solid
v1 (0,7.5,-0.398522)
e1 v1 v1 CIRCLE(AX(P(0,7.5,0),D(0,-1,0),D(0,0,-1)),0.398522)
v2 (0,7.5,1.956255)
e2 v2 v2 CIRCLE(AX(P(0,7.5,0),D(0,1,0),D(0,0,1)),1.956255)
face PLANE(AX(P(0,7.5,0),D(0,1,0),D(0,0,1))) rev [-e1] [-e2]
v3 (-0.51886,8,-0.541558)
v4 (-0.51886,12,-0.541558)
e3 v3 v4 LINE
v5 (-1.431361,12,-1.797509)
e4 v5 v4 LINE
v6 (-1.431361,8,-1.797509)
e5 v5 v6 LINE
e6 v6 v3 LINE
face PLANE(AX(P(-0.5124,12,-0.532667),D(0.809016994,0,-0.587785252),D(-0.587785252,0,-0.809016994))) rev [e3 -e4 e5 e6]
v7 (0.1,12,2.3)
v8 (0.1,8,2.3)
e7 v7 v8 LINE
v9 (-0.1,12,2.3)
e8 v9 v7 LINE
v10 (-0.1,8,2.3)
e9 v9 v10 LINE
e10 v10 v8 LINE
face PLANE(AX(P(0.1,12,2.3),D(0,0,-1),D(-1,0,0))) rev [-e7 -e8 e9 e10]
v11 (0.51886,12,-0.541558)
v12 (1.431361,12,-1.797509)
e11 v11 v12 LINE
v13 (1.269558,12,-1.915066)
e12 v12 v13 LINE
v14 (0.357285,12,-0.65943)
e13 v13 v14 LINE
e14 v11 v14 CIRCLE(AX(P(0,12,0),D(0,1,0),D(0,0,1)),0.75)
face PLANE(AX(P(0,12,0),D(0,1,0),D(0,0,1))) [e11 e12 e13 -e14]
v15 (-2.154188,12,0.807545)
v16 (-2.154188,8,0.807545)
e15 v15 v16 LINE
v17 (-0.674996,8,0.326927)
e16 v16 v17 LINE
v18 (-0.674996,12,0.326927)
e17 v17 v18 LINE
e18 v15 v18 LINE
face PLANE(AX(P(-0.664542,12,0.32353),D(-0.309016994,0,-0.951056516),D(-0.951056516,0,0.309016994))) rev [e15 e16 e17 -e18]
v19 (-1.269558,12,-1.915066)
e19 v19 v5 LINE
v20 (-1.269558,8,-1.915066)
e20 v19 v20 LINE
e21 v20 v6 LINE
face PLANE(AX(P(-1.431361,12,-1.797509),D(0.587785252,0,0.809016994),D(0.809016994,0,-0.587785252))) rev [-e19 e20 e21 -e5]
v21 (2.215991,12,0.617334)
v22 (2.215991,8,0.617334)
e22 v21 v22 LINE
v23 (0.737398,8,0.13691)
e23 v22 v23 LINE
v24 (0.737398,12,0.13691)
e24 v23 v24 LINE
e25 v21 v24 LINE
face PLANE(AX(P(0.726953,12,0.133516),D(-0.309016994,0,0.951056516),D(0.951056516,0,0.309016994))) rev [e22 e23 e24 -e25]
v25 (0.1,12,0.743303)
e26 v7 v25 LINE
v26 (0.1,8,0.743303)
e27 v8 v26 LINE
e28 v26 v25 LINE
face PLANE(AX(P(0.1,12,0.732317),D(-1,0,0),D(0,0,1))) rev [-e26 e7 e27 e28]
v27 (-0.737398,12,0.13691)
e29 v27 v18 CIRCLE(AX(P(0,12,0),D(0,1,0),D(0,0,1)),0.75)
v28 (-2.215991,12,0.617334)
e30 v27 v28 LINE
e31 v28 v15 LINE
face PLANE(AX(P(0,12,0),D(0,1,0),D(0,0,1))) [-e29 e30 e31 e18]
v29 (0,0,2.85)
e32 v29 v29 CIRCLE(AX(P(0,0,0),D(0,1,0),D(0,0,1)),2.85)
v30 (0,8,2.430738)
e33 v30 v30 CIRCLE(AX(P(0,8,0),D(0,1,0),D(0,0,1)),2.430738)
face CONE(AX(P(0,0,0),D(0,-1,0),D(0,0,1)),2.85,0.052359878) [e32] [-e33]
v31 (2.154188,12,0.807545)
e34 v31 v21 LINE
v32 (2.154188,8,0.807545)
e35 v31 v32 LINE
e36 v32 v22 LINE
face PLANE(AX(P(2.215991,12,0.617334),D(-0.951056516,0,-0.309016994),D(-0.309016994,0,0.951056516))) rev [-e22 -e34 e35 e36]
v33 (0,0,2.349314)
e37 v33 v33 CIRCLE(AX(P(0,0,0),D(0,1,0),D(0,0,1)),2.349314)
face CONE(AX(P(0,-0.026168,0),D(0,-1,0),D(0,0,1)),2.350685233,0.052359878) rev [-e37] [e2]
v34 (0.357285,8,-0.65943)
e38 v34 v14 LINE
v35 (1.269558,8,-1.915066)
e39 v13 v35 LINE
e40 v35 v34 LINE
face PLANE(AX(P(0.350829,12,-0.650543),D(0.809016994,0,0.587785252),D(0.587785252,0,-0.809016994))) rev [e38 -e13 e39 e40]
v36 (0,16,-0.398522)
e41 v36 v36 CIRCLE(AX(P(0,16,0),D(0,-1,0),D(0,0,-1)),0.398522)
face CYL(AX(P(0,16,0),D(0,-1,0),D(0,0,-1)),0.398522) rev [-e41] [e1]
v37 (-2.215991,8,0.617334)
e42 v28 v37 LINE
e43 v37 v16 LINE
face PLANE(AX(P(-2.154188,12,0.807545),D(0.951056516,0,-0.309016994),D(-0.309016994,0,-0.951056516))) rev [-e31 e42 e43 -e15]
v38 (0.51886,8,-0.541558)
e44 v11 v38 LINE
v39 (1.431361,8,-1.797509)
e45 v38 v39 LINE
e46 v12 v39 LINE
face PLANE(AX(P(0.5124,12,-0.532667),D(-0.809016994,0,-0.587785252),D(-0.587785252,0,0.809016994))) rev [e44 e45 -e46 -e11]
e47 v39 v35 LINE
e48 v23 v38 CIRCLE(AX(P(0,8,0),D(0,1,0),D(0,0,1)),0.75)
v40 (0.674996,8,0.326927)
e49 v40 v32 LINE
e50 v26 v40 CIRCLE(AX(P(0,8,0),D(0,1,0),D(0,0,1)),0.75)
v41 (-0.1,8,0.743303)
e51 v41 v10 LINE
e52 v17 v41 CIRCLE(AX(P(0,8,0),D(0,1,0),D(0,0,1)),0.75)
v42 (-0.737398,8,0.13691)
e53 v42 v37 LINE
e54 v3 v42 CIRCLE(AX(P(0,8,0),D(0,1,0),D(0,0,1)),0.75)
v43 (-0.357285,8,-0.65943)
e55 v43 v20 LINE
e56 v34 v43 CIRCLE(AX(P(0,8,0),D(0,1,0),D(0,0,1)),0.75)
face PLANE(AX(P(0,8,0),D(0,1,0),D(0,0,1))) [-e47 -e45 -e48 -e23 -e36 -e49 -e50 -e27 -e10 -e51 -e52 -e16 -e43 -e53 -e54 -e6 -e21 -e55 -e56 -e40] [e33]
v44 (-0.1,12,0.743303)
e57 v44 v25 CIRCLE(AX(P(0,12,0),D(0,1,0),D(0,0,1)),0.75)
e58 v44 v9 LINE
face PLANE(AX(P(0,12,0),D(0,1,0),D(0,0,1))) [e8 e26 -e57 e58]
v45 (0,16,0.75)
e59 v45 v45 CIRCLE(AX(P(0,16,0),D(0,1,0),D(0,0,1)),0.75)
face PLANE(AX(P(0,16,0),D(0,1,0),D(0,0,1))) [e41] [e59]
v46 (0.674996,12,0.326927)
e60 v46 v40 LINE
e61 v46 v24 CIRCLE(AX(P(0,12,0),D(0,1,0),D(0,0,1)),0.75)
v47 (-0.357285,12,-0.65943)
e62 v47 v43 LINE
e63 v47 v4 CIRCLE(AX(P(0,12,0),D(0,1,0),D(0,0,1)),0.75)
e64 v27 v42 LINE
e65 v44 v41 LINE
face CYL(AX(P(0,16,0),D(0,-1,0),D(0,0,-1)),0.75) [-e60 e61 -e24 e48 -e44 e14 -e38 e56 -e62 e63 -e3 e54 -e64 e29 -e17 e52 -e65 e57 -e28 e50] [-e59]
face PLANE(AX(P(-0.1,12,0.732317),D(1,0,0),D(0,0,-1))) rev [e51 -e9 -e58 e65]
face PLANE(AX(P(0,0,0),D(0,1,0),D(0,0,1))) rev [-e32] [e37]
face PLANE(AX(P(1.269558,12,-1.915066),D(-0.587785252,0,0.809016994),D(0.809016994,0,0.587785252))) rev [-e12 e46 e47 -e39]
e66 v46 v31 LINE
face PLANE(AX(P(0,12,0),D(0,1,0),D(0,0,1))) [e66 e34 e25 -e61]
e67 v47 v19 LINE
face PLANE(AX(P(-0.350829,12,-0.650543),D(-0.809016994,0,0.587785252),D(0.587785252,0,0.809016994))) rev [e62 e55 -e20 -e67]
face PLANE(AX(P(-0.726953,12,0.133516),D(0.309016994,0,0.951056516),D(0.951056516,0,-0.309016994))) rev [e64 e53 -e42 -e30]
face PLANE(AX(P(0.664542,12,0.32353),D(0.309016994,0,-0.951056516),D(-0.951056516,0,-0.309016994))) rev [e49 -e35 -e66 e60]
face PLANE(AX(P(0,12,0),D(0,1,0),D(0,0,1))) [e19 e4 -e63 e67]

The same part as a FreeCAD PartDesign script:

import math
import FreeCAD as App
import Part
import Sketcher

V = App.Vector
Q = App.Units.Quantity


def faces_at(feature, points):
    """Names of the faces that lie closest to the given points."""
    faces = feature.Shape.Faces
    near = lambda p: min(range(len(faces)), key=lambda i: faces[i].distToShape(Part.Vertex(*p))[0])
    return sorted({f"Face{near(p) + 1}" for p in points})

doc = App.newDocument("Part")
body = doc.addObject("PartDesign::Body", "Body")

# Sketch on XZ plane
sketch1 = body.newObject("Sketcher::SketchObject", "Sketch")
sketch1.AttachmentSupport = (doc.getObject("XZ_Plane"), [""])
sketch1.MapMode = "FlatFace"
sketch1.addGeometry(Part.Circle(V(0, 0, 0), V(0, 0, 1), 2.9), False)
sketch1.addConstraint(Sketcher.Constraint("Coincident", 0, 3, -1, 1))
sketch1.addConstraint(Sketcher.Constraint("Diameter", 0, Q("5.7 mm")))
pad1 = body.newObject("PartDesign::Pad", "Pad")
pad1.Profile = sketch1
pad1.Length = 8
pad1.Reversed = True
pad1.TaperAngle = -3
doc.recompute()

thickness = body.newObject("PartDesign::Thickness", "Thickness")
thickness.Base = (pad1, faces_at(pad1, [(0, 0, 0)]))
thickness.Value = 0.5
thickness.Reversed = True
thickness.Join = "Intersection"

# Sketch on XZ plane
sketch2 = body.newObject("Sketcher::SketchObject", "Sketch001")
sketch2.AttachmentSupport = (doc.getObject("XZ_Plane"), [""])
sketch2.MapMode = "FlatFace"
sketch2.AttachmentOffset = App.Placement(V(0, 0, -8), App.Rotation())
sketch2.addGeometry(Part.Circle(V(0, 0, 0), V(0, 0, 1), 0.8), False)
sketch2.addConstraint(Sketcher.Constraint("Coincident", 0, 3, -1, 1))
sketch2.addConstraint(Sketcher.Constraint("Diameter", 0, Q("1.5 mm")))
pad2 = body.newObject("PartDesign::Pad", "Pad001")
pad2.Profile = sketch2
pad2.Length = 8
pad2.Reversed = True

# Sketch on XZ plane
sketch3 = body.newObject("Sketcher::SketchObject", "Sketch002")
sketch3.AttachmentSupport = (doc.getObject("XZ_Plane"), [""])
sketch3.MapMode = "FlatFace"
sketch3.AttachmentOffset = App.Placement(V(0, 0, -8), App.Rotation())
sketch3.addGeometry(Part.LineSegment(V(-2.15, 0.81, 0), V(-0.66, 0.32, 0)), False)
sketch3.addGeometry(Part.ArcOfCircle(Part.Circle(V(0, 0, 0), V(0, 0, 1), 0.74), math.radians(154.04), math.radians(169.59)), False)
sketch3.addGeometry(Part.LineSegment(V(-0.73, 0.13, 0), V(-2.22, 0.62, 0)), False)
sketch3.addGeometry(Part.LineSegment(V(-2.22, 0.62, 0), V(-2.15, 0.81, 0)), False)
sketch3.addGeometry(Part.LineSegment(V(0.1, 2.3, 0), V(0.1, 0.73, 0)), False)
sketch3.addGeometry(Part.ArcOfCircle(Part.Circle(V(0, 0, 0), V(0, 0, 1), 0.74), math.radians(82.22), math.radians(97.78)), False)
sketch3.addGeometry(Part.LineSegment(V(-0.1, 0.73, 0), V(-0.1, 2.3, 0)), False)
sketch3.addGeometry(Part.LineSegment(V(-0.1, 2.3, 0), V(0.1, 2.3, 0)), False)
sketch3.addGeometry(Part.LineSegment(V(-1.43, -1.8, 0), V(-0.51, -0.53, 0)), False)
sketch3.addGeometry(Part.ArcOfCircle(Part.Circle(V(0, 0, 0), V(0, 0, 1), 0.74), math.radians(-133.89), math.radians(-118.34)), False)
sketch3.addGeometry(Part.LineSegment(V(-0.35, -0.65, 0), V(-1.27, -1.92, 0)), False)
sketch3.addGeometry(Part.LineSegment(V(-1.27, -1.92, 0), V(-1.43, -1.8, 0)), False)
sketch3.addGeometry(Part.LineSegment(V(1.27, -1.92, 0), V(0.35, -0.65, 0)), False)
sketch3.addGeometry(Part.ArcOfCircle(Part.Circle(V(0, 0, 0), V(0, 0, 1), 0.74), math.radians(-61.66), math.radians(-46.11)), False)
sketch3.addGeometry(Part.LineSegment(V(0.51, -0.53, 0), V(1.43, -1.8, 0)), False)
sketch3.addGeometry(Part.LineSegment(V(1.43, -1.8, 0), V(1.27, -1.92, 0)), False)
sketch3.addGeometry(Part.LineSegment(V(2.22, 0.62, 0), V(0.73, 0.13, 0)), False)
sketch3.addGeometry(Part.ArcOfCircle(Part.Circle(V(0, 0, 0), V(0, 0, 1), 0.74), math.radians(10.41), math.radians(25.96)), False)
sketch3.addGeometry(Part.LineSegment(V(0.66, 0.32, 0), V(2.15, 0.81, 0)), False)
sketch3.addGeometry(Part.LineSegment(V(2.15, 0.81, 0), V(2.22, 0.62, 0)), False)
sketch3.addConstraint(Sketcher.Constraint("Coincident", 0, 2, 1, 1))
sketch3.addConstraint(Sketcher.Constraint("Coincident", 1, 2, 2, 1))
sketch3.addConstraint(Sketcher.Constraint("Coincident", 2, 2, 3, 1))
sketch3.addConstraint(Sketcher.Constraint("Coincident", 3, 2, 0, 1))
sketch3.addConstraint(Sketcher.Constraint("Coincident", 4, 2, 5, 1))
sketch3.addConstraint(Sketcher.Constraint("Coincident", 5, 2, 6, 1))
sketch3.addConstraint(Sketcher.Constraint("Coincident", 6, 2, 7, 1))
sketch3.addConstraint(Sketcher.Constraint("Coincident", 7, 2, 4, 1))
sketch3.addConstraint(Sketcher.Constraint("Coincident", 8, 2, 9, 1))
sketch3.addConstraint(Sketcher.Constraint("Coincident", 9, 2, 10, 1))
sketch3.addConstraint(Sketcher.Constraint("Coincident", 10, 2, 11, 1))
sketch3.addConstraint(Sketcher.Constraint("Coincident", 11, 2, 8, 1))
sketch3.addConstraint(Sketcher.Constraint("Coincident", 12, 2, 13, 1))
sketch3.addConstraint(Sketcher.Constraint("Coincident", 13, 2, 14, 1))
sketch3.addConstraint(Sketcher.Constraint("Coincident", 14, 2, 15, 1))
sketch3.addConstraint(Sketcher.Constraint("Coincident", 15, 2, 12, 1))
sketch3.addConstraint(Sketcher.Constraint("Coincident", 16, 2, 17, 1))
sketch3.addConstraint(Sketcher.Constraint("Coincident", 17, 2, 18, 1))
sketch3.addConstraint(Sketcher.Constraint("Coincident", 18, 2, 19, 1))
sketch3.addConstraint(Sketcher.Constraint("Coincident", 19, 2, 16, 1))
sketch3.addConstraint(Sketcher.Constraint("Vertical", 4))
sketch3.addConstraint(Sketcher.Constraint("Vertical", 6))
sketch3.addConstraint(Sketcher.Constraint("Horizontal", 7))
sketch3.addConstraint(Sketcher.Constraint("Coincident", 1, 3, -1, 1))
sketch3.addConstraint(Sketcher.Constraint("Coincident", 5, 3, -1, 1))
sketch3.addConstraint(Sketcher.Constraint("Coincident", 9, 3, -1, 1))
sketch3.addConstraint(Sketcher.Constraint("Coincident", 13, 3, -1, 1))
sketch3.addConstraint(Sketcher.Constraint("Coincident", 17, 3, -1, 1))
sketch3.addConstraint(Sketcher.Constraint("Equal", 1, 5))
sketch3.addConstraint(Sketcher.Constraint("Equal", 5, 9))
sketch3.addConstraint(Sketcher.Constraint("Equal", 9, 13))
sketch3.addConstraint(Sketcher.Constraint("Equal", 13, 17))
sketch3.addConstraint(Sketcher.Constraint("Symmetric", 11, 2, 14, 2, -2))
sketch3.addConstraint(Sketcher.Constraint("Symmetric", 10, 2, 15, 2, -2))
sketch3.addConstraint(Sketcher.Constraint("Symmetric", 3, 2, 18, 2, -2))
sketch3.addConstraint(Sketcher.Constraint("Symmetric", 2, 2, 19, 2, -2))
sketch3.addConstraint(Sketcher.Constraint("Parallel", 0, 2))
sketch3.addConstraint(Sketcher.Constraint("Perpendicular", 2, 3))
sketch3.addConstraint(Sketcher.Constraint("Parallel", 8, 10))
sketch3.addConstraint(Sketcher.Constraint("Perpendicular", 10, 11))
sketch3.addConstraint(Sketcher.Constraint("Parallel", 12, 14))
sketch3.addConstraint(Sketcher.Constraint("Perpendicular", 14, 15))
sketch3.addConstraint(Sketcher.Constraint("Parallel", 16, 18))
sketch3.addConstraint(Sketcher.Constraint("Perpendicular", 18, 19))
sketch3.addConstraint(Sketcher.Constraint("Horizontal", 4, 2, 5, 2))
sketch3.addConstraint(Sketcher.Constraint("Equal", 3, 11))
sketch3.addConstraint(Sketcher.Constraint("Angle", 0, Q("-18 deg")))
sketch3.addConstraint(Sketcher.Constraint("Angle", 8, Q("54 deg")))
sketch3.addConstraint(Sketcher.Constraint("DistanceX", 7, 1, 7, 2, Q("0.2 mm")))
sketch3.addConstraint(Sketcher.Constraint("Distance", 3, Q("0.2 mm")))
sketch3.addConstraint(Sketcher.Constraint("DistanceY", -1, 1, 6, 2, Q("2.3 mm")))
sketch3.addConstraint(Sketcher.Constraint("DistanceY", 13, 2, 19, 2, Q("1.150001 mm")))
sketch3.addConstraint(Sketcher.Constraint("Radius", 1, Q("0.739113 mm")))
sketch3.addConstraint(Sketcher.Constraint("DistanceX", 8, 2, -1, 1, Q("0.5124 mm")))
sketch3.addConstraint(Sketcher.Constraint("DistanceY", 10, 2, 8, 2, Q("1.382399 mm")))
sketch3.addConstraint(Sketcher.Constraint("DistanceX", 0, 2, -1, 1, Q("0.664542 mm")))
pad3 = body.newObject("PartDesign::Pad", "Pad002")
pad3.Profile = sketch3
pad3.Length = 4
pad3.Reversed = True

# Sketch on XZ plane
sketch4 = body.newObject("Sketcher::SketchObject", "Sketch003")
sketch4.AttachmentSupport = (doc.getObject("XZ_Plane"), [""])
sketch4.MapMode = "FlatFace"
sketch4.AttachmentOffset = App.Placement(V(0, 0, -7.5), App.Rotation())
sketch4.addGeometry(Part.Circle(V(0, 0, 0), V(0, 0, 1), 0.4), False)
sketch4.addConstraint(Sketcher.Constraint("Coincident", 0, 3, -1, 1))
sketch4.addConstraint(Sketcher.Constraint("Diameter", 0, Q("0.797043 mm")))
pocket1 = body.newObject("PartDesign::Pocket", "Pocket")
pocket1.Profile = sketch4
pocket1.Type = "ThroughAll"

doc.recompute()
